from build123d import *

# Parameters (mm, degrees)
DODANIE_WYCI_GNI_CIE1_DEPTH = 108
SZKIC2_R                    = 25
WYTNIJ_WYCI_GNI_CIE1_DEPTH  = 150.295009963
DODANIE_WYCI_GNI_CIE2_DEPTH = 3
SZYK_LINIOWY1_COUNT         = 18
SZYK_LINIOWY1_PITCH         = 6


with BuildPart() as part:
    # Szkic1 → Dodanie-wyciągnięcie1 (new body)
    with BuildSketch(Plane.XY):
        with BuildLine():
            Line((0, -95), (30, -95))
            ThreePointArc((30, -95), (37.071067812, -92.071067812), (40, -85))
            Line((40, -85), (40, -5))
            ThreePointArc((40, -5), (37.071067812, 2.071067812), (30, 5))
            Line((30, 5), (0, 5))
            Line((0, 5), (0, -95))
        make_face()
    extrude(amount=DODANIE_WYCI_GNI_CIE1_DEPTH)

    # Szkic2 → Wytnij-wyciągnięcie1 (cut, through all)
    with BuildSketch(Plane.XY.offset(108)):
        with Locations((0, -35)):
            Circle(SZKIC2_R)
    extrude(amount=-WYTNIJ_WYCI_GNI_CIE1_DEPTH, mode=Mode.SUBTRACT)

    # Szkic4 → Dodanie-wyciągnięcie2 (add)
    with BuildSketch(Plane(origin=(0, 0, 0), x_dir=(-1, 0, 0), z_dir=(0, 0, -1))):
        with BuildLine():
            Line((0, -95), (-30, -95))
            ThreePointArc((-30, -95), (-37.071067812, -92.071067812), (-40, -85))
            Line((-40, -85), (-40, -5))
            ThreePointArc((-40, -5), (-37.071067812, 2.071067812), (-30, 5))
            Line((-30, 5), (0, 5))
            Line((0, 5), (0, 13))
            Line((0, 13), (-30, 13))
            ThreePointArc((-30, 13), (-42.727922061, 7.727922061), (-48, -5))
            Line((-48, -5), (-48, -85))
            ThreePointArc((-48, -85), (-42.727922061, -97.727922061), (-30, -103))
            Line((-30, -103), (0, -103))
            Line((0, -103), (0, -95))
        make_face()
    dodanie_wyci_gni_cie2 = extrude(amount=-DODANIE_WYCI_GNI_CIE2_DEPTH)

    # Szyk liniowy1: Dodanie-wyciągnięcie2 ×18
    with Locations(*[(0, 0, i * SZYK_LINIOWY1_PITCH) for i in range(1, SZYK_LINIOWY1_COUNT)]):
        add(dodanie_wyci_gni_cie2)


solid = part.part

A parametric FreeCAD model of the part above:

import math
import FreeCAD as App
import Part
import Sketcher
from FreeCAD import Vector
Q = App.Units.Quantity

doc = App.newDocument("Part")
body = doc.addObject("PartDesign::Body", "Body")

# Sketch on XY plane
sketch1 = doc.addObject("Sketcher::SketchObject", "Sketch")
body.addObject(sketch1)
sketch1.AttachmentSupport = (doc.XY_Plane, [""])
sketch1.MapMode = "FlatFace"
sketch1.addGeometry([
    Part.LineSegment(Vector(0, -95, 0), Vector(30, -95, 0)),  # 0
    Part.ArcOfCircle(Part.Circle(Vector(30, -85, 0), Vector(0, 0, 1), 10), math.radians(-90), math.radians(0)),  # 1
    Part.LineSegment(Vector(40, -85, 0), Vector(40, -5, 0)),  # 2
    Part.ArcOfCircle(Part.Circle(Vector(30, -5, 0), Vector(0, 0, 1), 10), math.radians(0), math.radians(90)),  # 3
    Part.LineSegment(Vector(30, 5, 0), Vector(0, 5, 0)),  # 4
    Part.LineSegment(Vector(0, 5, 0), Vector(0, -95, 0)),  # 5
], False)
sketch1.addConstraint([
    Sketcher.Constraint("Tangent", 0, 2, 1, 1),
    Sketcher.Constraint("Tangent", 1, 2, 2, 1),
    Sketcher.Constraint("Tangent", 2, 2, 3, 1),
    Sketcher.Constraint("Tangent", 3, 2, 4, 1),
    Sketcher.Constraint("Coincident", 4, 2, 5, 1),
    Sketcher.Constraint("Coincident", 5, 2, 0, 1),
    Sketcher.Constraint("Horizontal", 0),
    Sketcher.Constraint("Vertical", 2),
    Sketcher.Constraint("Horizontal", 4),
    Sketcher.Constraint("Vertical", 5),
    Sketcher.Constraint("Equal", 1, 3),
    Sketcher.Constraint("PointOnObject", 4, 2, -2),
    Sketcher.Constraint("Radius", 1, Q("10 mm")),
    Sketcher.Constraint("DistanceX", 0, 1, 0, 2, Q("30 mm")),
    Sketcher.Constraint("DistanceY", 2, 1, 2, 2, Q("80 mm")),
    Sketcher.Constraint("DistanceY", 1, 3, -1, 1, Q("85 mm")),
])
pad1 = doc.addObject("PartDesign::Pad", "Pad")
body.addObject(pad1)
pad1.Profile = sketch1
pad1.Length = 108

# Sketch on XY plane
sketch2 = doc.addObject("Sketcher::SketchObject", "Sketch001")
body.addObject(sketch2)
sketch2.AttachmentSupport = (doc.XY_Plane, [""])
sketch2.MapMode = "FlatFace"
sketch2.AttachmentOffset = App.Placement(Vector(0, 0, 108), App.Rotation())
sketch2.addGeometry(Part.Circle(Vector(0, -35, 0), Vector(0, 0, 1), 25), False)
sketch2.addConstraint([
    Sketcher.Constraint("PointOnObject", 0, 3, -2),
    Sketcher.Constraint("Diameter", 0, Q("50 mm")),
    Sketcher.Constraint("DistanceY", 0, 3, -1, 1, Q("35 mm")),
])
pocket1 = doc.addObject("PartDesign::Pocket", "Pocket")
body.addObject(pocket1)
pocket1.Profile = sketch2
pocket1.Type = "ThroughAll"

# Sketch on XY plane
sketch3 = doc.addObject("Sketcher::SketchObject", "Sketch002")
body.addObject(sketch3)
sketch3.AttachmentSupport = (doc.XY_Plane, [""])
sketch3.MapMode = "FlatFace"
sketch3.addGeometry([
    Part.LineSegment(Vector(0, -95, 0), Vector(30, -95, 0)),  # 0
    Part.ArcOfCircle(Part.Circle(Vector(30, -85, 0), Vector(0, 0, 1), 10), math.radians(-90), math.radians(0)),  # 1
    Part.LineSegment(Vector(40, -85, 0), Vector(40, -5, 0)),  # 2
    Part.ArcOfCircle(Part.Circle(Vector(30, -5, 0), Vector(0, 0, 1), 10), math.radians(0), math.radians(90)),  # 3
    Part.LineSegment(Vector(30, 5, 0), Vector(0, 5, 0)),  # 4
    Part.LineSegment(Vector(0, 5, 0), Vector(0, 13, 0)),  # 5
    Part.LineSegment(Vector(0, 13, 0), Vector(30, 13, 0)),  # 6
    Part.ArcOfCircle(Part.Circle(Vector(30, -5, 0), Vector(0, 0, 1), 18), math.radians(0), math.radians(90)),  # 7
    Part.LineSegment(Vector(48, -5, 0), Vector(48, -85, 0)),  # 8
    Part.ArcOfCircle(Part.Circle(Vector(30, -85, 0), Vector(0, 0, 1), 18), math.radians(-90), math.radians(0)),  # 9
    Part.LineSegment(Vector(30, -103, 0), Vector(0, -103, 0)),  # 10
    Part.LineSegment(Vector(0, -103, 0), Vector(0, -95, 0)),  # 11
], False)
sketch3.addConstraint([
    Sketcher.Constraint("Tangent", 0, 2, 1, 1),
    Sketcher.Constraint("Tangent", 1, 2, 2, 1),
    Sketcher.Constraint("Tangent", 2, 2, 3, 1),
    Sketcher.Constraint("Tangent", 3, 2, 4, 1),
    Sketcher.Constraint("Coincident", 4, 2, 5, 1),
    Sketcher.Constraint("Coincident", 5, 2, 6, 1),
    Sketcher.Constraint("Tangent", 6, 2, 7, 2),
    Sketcher.Constraint("Tangent", 7, 1, 8, 1),
    Sketcher.Constraint("Tangent", 8, 2, 9, 2),
    Sketcher.Constraint("Tangent", 9, 1, 10, 1),
    Sketcher.Constraint("Coincident", 10, 2, 11, 1),
    Sketcher.Constraint("Coincident", 11, 2, 0, 1),
    Sketcher.Constraint("Horizontal", 0),
    Sketcher.Constraint("Vertical", 2),
    Sketcher.Constraint("Horizontal", 4),
    Sketcher.Constraint("Vertical", 5),
    Sketcher.Constraint("Horizontal", 6),
    Sketcher.Constraint("Vertical", 8),
    Sketcher.Constraint("Horizontal", 10),
    Sketcher.Constraint("Vertical", 11),
    Sketcher.Constraint("Coincident", 7, 3, 3, 3),
    Sketcher.Constraint("Coincident", 9, 3, 1, 3),
    Sketcher.Constraint("Equal", 1, 3),
    Sketcher.Constraint("PointOnObject", 4, 2, -2),
    Sketcher.Constraint("PointOnObject", 10, 2, -2),
    Sketcher.Constraint("Radius", 1, Q("10 mm")),
    Sketcher.Constraint("Radius", 7, Q("18 mm")),
    Sketcher.Constraint("DistanceX", 0, 1, 0, 2, Q("30 mm")),
    Sketcher.Constraint("DistanceY", 2, 1, 2, 2, Q("80 mm")),
    Sketcher.Constraint("DistanceY", 1, 3, -1, 1, Q("85 mm")),
])
pad2 = doc.addObject("PartDesign::Pad", "Pad001")
body.addObject(pad2)
pad2.Profile = sketch3
pad2.Length = 3
doc.recompute()

linearpattern = doc.addObject("PartDesign::LinearPattern", "LinearPattern")
body.addObject(linearpattern)
linearpattern.Originals = [pad2]
linearpattern.Direction = (doc.Z_Axis, [""])
linearpattern.Mode = "offset"
linearpattern.Offset = 6
linearpattern.Occurrences = 18
body.Tip = linearpattern

doc.recompute()
